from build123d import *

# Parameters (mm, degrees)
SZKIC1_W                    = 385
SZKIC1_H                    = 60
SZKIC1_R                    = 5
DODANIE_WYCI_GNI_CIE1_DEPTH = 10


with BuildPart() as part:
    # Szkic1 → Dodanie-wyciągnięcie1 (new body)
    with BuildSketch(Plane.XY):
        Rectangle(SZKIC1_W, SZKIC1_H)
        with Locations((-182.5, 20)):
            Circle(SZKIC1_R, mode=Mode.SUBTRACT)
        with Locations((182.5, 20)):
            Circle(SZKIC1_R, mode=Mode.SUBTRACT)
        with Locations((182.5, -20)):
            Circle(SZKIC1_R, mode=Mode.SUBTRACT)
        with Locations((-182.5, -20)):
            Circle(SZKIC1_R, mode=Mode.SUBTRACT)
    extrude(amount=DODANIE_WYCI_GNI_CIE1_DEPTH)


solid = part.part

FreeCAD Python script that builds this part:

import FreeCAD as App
import Part
import Sketcher

V = App.Vector
Q = App.Units.Quantity

doc = App.newDocument("Part")
body = doc.addObject("PartDesign::Body", "Body")

sketch1 = doc.addObject("Sketcher::SketchObject", "Sketch")
body.addObject(sketch1)
sketch1.AttachmentSupport = (doc.XY_Plane, [""])
sketch1.MapMode = "FlatFace"
sketch1.addGeometry([
    Part.LineSegment(V(-192.5, 30, 0), V(-192.5, -30, 0)),
    Part.LineSegment(V(-192.5, -30, 0), V(192.5, -30, 0)),
    Part.LineSegment(V(192.5, -30, 0), V(192.5, 30, 0)),
    Part.LineSegment(V(192.5, 30, 0), V(-192.5, 30, 0)),
    Part.Circle(V(-182.5, -20, 0), V(0, 0, 1), 5),
    Part.Circle(V(182.5, -20, 0), V(0, 0, 1), 5),
    Part.Circle(V(-182.5, 20, 0), V(0, 0, 1), 5),
    Part.Circle(V(182.5, 20, 0), V(0, 0, 1), 5),
], False)
sketch1.addConstraint([
    Sketcher.Constraint("Coincident", 0, 2, 1, 1),
    Sketcher.Constraint("Coincident", 1, 2, 2, 1),
    Sketcher.Constraint("Coincident", 2, 2, 3, 1),
    Sketcher.Constraint("Coincident", 3, 2, 0, 1),
    Sketcher.Constraint("Vertical", 0),
    Sketcher.Constraint("Horizontal", 1),
    Sketcher.Constraint("Vertical", 2),
    Sketcher.Constraint("Horizontal", 3),
    Sketcher.Constraint("Equal", 4, 5),
    Sketcher.Constraint("Equal", 5, 6),
    Sketcher.Constraint("Equal", 6, 7),
    Sketcher.Constraint("Symmetric", 5, 3, 6, 3, -1, 1),
    Sketcher.Constraint("Symmetric", 4, 3, 7, 3, -1, 1),
    Sketcher.Constraint("Symmetric", 0, 2, 2, 2, -1, 1),
    Sketcher.Constraint("Symmetric", 4, 3, 5, 3, -2),
    Sketcher.Constraint("Diameter", 4, Q("10 mm")),
    Sketcher.Constraint("DistanceX", 1, 1, 1, 2, Q("385 mm")),
    Sketcher.Constraint("DistanceY", 0, 2, 0, 1, Q("60 mm")),
    Sketcher.Constraint("DistanceY", 4, 3, -1, 1, Q("20 mm")),
    Sketcher.Constraint("DistanceX", 4, 3, 5, 3, Q("365 mm")),
])
pad1 = doc.addObject("PartDesign::Pad", "Pad")
body.addObject(pad1)
pad1.Profile = sketch1
pad1.Length = 10

doc.recompute()
